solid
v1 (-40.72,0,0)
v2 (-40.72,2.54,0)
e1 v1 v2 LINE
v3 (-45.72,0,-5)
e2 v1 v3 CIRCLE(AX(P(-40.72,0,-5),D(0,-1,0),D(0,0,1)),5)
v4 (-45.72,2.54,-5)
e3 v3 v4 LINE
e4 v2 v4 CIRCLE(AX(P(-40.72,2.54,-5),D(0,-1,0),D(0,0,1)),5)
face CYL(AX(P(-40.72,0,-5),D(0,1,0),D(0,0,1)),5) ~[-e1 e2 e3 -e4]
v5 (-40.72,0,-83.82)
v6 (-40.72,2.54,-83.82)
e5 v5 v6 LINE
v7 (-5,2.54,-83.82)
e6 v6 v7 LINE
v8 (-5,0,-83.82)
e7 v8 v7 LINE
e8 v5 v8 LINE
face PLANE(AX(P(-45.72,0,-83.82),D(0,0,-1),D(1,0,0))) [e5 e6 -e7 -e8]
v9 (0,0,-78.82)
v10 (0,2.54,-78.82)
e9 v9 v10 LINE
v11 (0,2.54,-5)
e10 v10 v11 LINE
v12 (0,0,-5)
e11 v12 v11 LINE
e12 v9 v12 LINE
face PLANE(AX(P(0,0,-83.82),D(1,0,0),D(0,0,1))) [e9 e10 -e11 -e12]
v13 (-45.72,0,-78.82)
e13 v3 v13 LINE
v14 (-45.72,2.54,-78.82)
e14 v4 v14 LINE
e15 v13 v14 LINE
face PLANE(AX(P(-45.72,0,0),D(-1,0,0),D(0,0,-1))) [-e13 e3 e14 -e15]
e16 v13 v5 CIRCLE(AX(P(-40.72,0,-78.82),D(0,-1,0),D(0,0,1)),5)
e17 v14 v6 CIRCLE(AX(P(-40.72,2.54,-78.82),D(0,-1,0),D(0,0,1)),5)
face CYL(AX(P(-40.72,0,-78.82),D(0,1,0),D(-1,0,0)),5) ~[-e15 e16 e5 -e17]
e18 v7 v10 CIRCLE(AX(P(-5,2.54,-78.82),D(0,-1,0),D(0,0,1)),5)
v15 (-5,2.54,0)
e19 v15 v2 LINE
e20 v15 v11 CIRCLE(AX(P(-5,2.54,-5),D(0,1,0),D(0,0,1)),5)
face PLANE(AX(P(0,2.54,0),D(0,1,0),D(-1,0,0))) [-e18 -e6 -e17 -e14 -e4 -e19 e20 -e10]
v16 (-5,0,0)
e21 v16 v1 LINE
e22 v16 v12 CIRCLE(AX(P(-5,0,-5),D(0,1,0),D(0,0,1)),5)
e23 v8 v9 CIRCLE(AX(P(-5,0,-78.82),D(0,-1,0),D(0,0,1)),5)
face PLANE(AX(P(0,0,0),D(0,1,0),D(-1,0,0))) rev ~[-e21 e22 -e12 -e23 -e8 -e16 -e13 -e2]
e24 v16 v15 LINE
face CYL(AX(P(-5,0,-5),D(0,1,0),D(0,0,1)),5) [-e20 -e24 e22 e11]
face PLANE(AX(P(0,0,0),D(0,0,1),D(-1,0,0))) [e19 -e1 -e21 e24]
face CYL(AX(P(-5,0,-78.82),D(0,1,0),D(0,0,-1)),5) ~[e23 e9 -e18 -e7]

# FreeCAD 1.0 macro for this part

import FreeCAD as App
import Part
import Sketcher
from FreeCAD import Vector
Q = App.Units.Quantity


def edges_at(feature, points):
    """Names of the edges that pass closest to the given points."""
    edges = feature.Shape.Edges
    near = lambda p: min(range(len(edges)), key=lambda i: edges[i].distToShape(Part.Vertex(*p))[0])
    return sorted({f"Edge{near(p) + 1}" for p in points})


def add_polygon(sketch, points):
    """Adds a closed chain of lines whose ends are joined by coincident constraints."""
    first, n = sketch.GeometryCount, len(points)
    for a, b in zip(points, points[1:] + points[:1]):
        sketch.addGeometry(Part.LineSegment(App.Vector(*a, 0), App.Vector(*b, 0)), False)
    for i in range(n):
        sketch.addConstraint(Sketcher.Constraint("Coincident", first + i, 2, first + (i + 1) % n, 1))

doc = App.newDocument("Part")
body = doc.addObject("PartDesign::Body", "Body")

sketch1 = body.newObject("Sketcher::SketchObject", "Sketch")
sketch1.AttachmentSupport = (doc.getObject("XZ_Plane"), [""])
sketch1.MapMode = "FlatFace"
add_polygon(sketch1, [(-46, 0), (0, 0), (0, -84), (-46, -84)])
sketch1.addConstraint(Sketcher.Constraint("Horizontal", 0))
sketch1.addConstraint(Sketcher.Constraint("Vertical", 1))
sketch1.addConstraint(Sketcher.Constraint("Horizontal", 2))
sketch1.addConstraint(Sketcher.Constraint("Vertical", 3))
sketch1.addConstraint(Sketcher.Constraint("Coincident", 0, 2, -1, 1))
sketch1.addConstraint(Sketcher.Constraint("DistanceX", 0, 1, 0, 2, Q("1.8 in")))
sketch1.addConstraint(Sketcher.Constraint("DistanceY", 1, 2, 1, 1, Q("3.3 in")))
pad1 = body.newObject("PartDesign::Pad", "Pad")
pad1.Profile = sketch1
pad1.Length = Q("0.1 in")
pad1.Reversed = True
doc.recompute()

fillet = body.newObject("PartDesign::Fillet", "Fillet")
fillet.Base = (pad1, edges_at(pad1, [
    (-45.72, 1.27, 0),
    (0, 1.27, 0),
    (0, 1.27, -83.82),
    (-45.72, 1.27, -83.82),
]))
fillet.Radius = 5

doc.recompute()
